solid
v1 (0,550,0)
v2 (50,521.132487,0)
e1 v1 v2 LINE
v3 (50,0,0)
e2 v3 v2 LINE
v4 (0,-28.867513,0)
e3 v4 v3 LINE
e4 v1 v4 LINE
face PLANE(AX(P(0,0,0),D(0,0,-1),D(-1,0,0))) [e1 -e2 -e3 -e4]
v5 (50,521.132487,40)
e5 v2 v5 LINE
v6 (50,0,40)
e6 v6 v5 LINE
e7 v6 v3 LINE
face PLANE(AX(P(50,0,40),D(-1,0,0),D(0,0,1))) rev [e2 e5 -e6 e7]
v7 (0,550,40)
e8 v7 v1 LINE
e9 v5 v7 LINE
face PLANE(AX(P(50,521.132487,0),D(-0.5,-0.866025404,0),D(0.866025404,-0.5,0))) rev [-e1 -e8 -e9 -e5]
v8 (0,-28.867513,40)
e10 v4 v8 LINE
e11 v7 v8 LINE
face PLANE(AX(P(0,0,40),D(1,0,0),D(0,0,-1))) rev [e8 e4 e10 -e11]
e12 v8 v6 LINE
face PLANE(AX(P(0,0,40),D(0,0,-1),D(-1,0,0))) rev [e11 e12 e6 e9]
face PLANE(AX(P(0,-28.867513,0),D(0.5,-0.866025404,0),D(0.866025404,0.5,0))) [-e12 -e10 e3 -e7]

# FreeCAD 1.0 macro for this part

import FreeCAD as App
import Part
import Sketcher

V = App.Vector
Q = App.Units.Quantity

doc = App.newDocument("Part")
params = doc.addObject("Spreadsheet::Sheet", "Params")
for row, (alias, value) in enumerate([
    ("sketch1_width", "50 mm"),
    ("sketch1_height", "550 mm"),
    ("pad1_length", "40 mm"),
    ("sketch2_width", "50 mm"),
    ("pad2_length", "40 mm"),
    ("sketch3_width", "50 mm"),
], start=1):
    params.set(f"A{row}", alias)
    params.set(f"B{row}", "=" + value)
    params.setAlias(f"B{row}", alias)

body = doc.addObject("PartDesign::Body", "Body")

# Sketch on XY plane
sketch1 = doc.addObject("Sketcher::SketchObject", "Sketch")
body.addObject(sketch1)
sketch1.AttachmentSupport = (doc.XY_Plane, [""])
sketch1.MapMode = "FlatFace"
sketch1.addGeometry(Part.LineSegment(V(0, 550, 0), V(0, 0, 0)), False)
sketch1.addGeometry(Part.LineSegment(V(0, 0, 0), V(50, 0, 0)), False)
sketch1.addGeometry(Part.LineSegment(V(50, 0, 0), V(50, 550, 0)), False)
sketch1.addGeometry(Part.LineSegment(V(50, 550, 0), V(0, 550, 0)), False)
sketch1.addConstraint(Sketcher.Constraint("Coincident", 0, 2, 1, 1))
sketch1.addConstraint(Sketcher.Constraint("Coincident", 1, 2, 2, 1))
sketch1.addConstraint(Sketcher.Constraint("Coincident", 2, 2, 3, 1))
sketch1.addConstraint(Sketcher.Constraint("Coincident", 3, 2, 0, 1))
sketch1.addConstraint(Sketcher.Constraint("Vertical", 0))
sketch1.addConstraint(Sketcher.Constraint("Horizontal", 1))
sketch1.addConstraint(Sketcher.Constraint("Vertical", 2))
sketch1.addConstraint(Sketcher.Constraint("Horizontal", 3))
sketch1.addConstraint(Sketcher.Constraint("Coincident", 0, 2, -1, 1))
sketch1.addConstraint(Sketcher.Constraint("DistanceX", 1, 1, 1, 2, 50.0))
sketch1.addConstraint(Sketcher.Constraint("DistanceY", 0, 2, 0, 1, 550.0))
sketch1.setExpression("Constraints[9]", "Params.sketch1_width")
sketch1.setExpression("Constraints[10]", "Params.sketch1_height")
pad1 = doc.addObject("PartDesign::Pad", "Pad")
body.addObject(pad1)
pad1.Profile = sketch1
pad1.setExpression("Length", "Params.pad1_length")

# Sketch on XY plane
sketch2 = doc.addObject("Sketcher::SketchObject", "Sketch001")
body.addObject(sketch2)
sketch2.AttachmentSupport = (doc.XY_Plane, [""])
sketch2.MapMode = "FlatFace"
sketch2.AttachmentOffset = App.Placement(V(0, 0, 40), App.Rotation())
sketch2.addGeometry(Part.LineSegment(V(50, 0, 0), V(0, 0, 0)), False)
sketch2.addGeometry(Part.LineSegment(V(0, 0, 0), V(0, -29, 0)), False)
sketch2.addGeometry(Part.LineSegment(V(0, -29, 0), V(50, 0, 0)), False)
sketch2.addConstraint(Sketcher.Constraint("Coincident", 0, 2, 1, 1))
sketch2.addConstraint(Sketcher.Constraint("Coincident", 1, 2, 2, 1))
sketch2.addConstraint(Sketcher.Constraint("Coincident", 2, 2, 0, 1))
sketch2.addConstraint(Sketcher.Constraint("Horizontal", 0))
sketch2.addConstraint(Sketcher.Constraint("Vertical", 1))
sketch2.addConstraint(Sketcher.Constraint("Coincident", 0, 2, -1, 1))
sketch2.addConstraint(Sketcher.Constraint("DistanceX", 0, 2, 0, 1, 50.0))
sketch2.addConstraint(Sketcher.Constraint("Angle", 2, Q("30 deg")))
sketch2.setExpression("Constraints[6]", "Params.sketch2_width")
pad2 = doc.addObject("PartDesign::Pad", "Pad001")
body.addObject(pad2)
pad2.Profile = sketch2
pad2.setExpression("Length", "Params.pad2_length")
pad2.Reversed = True

# Sketch on XY plane
sketch3 = doc.addObject("Sketcher::SketchObject", "Sketch002")
body.addObject(sketch3)
sketch3.AttachmentSupport = (doc.XY_Plane, [""])
sketch3.MapMode = "FlatFace"
sketch3.AttachmentOffset = App.Placement(V(0, 0, 40), App.Rotation())
sketch3.addGeometry(Part.LineSegment(V(0, 550, 0), V(50, 521, 0)), False)
sketch3.addGeometry(Part.LineSegment(V(50, 521, 0), V(50, 550, 0)), False)
sketch3.addGeometry(Part.LineSegment(V(50, 550, 0), V(0, 550, 0)), False)
sketch3.addConstraint(Sketcher.Constraint("Coincident", 0, 2, 1, 1))
sketch3.addConstraint(Sketcher.Constraint("Coincident", 1, 2, 2, 1))
sketch3.addConstraint(Sketcher.Constraint("Coincident", 2, 2, 0, 1))
sketch3.addConstraint(Sketcher.Constraint("Vertical", 1))
sketch3.addConstraint(Sketcher.Constraint("Horizontal", 2))
sketch3.addConstraint(Sketcher.Constraint("PointOnObject", 2, 2, -2))
sketch3.addConstraint(Sketcher.Constraint("DistanceX", 2, 2, 2, 1, 50.0))
sketch3.addConstraint(Sketcher.Constraint("Angle", 0, Q("-30 deg")))
sketch3.addConstraint(Sketcher.Constraint("DistanceY", -1, 1, 1, 2, 550.0))
sketch3.setExpression("Constraints[6]", "Params.sketch3_width")
pocket1 = doc.addObject("PartDesign::Pocket", "Pocket")
body.addObject(pocket1)
pocket1.Profile = sketch3
pocket1.Type = "ThroughAll"
pocket1.Midplane = True

doc.recompute()
